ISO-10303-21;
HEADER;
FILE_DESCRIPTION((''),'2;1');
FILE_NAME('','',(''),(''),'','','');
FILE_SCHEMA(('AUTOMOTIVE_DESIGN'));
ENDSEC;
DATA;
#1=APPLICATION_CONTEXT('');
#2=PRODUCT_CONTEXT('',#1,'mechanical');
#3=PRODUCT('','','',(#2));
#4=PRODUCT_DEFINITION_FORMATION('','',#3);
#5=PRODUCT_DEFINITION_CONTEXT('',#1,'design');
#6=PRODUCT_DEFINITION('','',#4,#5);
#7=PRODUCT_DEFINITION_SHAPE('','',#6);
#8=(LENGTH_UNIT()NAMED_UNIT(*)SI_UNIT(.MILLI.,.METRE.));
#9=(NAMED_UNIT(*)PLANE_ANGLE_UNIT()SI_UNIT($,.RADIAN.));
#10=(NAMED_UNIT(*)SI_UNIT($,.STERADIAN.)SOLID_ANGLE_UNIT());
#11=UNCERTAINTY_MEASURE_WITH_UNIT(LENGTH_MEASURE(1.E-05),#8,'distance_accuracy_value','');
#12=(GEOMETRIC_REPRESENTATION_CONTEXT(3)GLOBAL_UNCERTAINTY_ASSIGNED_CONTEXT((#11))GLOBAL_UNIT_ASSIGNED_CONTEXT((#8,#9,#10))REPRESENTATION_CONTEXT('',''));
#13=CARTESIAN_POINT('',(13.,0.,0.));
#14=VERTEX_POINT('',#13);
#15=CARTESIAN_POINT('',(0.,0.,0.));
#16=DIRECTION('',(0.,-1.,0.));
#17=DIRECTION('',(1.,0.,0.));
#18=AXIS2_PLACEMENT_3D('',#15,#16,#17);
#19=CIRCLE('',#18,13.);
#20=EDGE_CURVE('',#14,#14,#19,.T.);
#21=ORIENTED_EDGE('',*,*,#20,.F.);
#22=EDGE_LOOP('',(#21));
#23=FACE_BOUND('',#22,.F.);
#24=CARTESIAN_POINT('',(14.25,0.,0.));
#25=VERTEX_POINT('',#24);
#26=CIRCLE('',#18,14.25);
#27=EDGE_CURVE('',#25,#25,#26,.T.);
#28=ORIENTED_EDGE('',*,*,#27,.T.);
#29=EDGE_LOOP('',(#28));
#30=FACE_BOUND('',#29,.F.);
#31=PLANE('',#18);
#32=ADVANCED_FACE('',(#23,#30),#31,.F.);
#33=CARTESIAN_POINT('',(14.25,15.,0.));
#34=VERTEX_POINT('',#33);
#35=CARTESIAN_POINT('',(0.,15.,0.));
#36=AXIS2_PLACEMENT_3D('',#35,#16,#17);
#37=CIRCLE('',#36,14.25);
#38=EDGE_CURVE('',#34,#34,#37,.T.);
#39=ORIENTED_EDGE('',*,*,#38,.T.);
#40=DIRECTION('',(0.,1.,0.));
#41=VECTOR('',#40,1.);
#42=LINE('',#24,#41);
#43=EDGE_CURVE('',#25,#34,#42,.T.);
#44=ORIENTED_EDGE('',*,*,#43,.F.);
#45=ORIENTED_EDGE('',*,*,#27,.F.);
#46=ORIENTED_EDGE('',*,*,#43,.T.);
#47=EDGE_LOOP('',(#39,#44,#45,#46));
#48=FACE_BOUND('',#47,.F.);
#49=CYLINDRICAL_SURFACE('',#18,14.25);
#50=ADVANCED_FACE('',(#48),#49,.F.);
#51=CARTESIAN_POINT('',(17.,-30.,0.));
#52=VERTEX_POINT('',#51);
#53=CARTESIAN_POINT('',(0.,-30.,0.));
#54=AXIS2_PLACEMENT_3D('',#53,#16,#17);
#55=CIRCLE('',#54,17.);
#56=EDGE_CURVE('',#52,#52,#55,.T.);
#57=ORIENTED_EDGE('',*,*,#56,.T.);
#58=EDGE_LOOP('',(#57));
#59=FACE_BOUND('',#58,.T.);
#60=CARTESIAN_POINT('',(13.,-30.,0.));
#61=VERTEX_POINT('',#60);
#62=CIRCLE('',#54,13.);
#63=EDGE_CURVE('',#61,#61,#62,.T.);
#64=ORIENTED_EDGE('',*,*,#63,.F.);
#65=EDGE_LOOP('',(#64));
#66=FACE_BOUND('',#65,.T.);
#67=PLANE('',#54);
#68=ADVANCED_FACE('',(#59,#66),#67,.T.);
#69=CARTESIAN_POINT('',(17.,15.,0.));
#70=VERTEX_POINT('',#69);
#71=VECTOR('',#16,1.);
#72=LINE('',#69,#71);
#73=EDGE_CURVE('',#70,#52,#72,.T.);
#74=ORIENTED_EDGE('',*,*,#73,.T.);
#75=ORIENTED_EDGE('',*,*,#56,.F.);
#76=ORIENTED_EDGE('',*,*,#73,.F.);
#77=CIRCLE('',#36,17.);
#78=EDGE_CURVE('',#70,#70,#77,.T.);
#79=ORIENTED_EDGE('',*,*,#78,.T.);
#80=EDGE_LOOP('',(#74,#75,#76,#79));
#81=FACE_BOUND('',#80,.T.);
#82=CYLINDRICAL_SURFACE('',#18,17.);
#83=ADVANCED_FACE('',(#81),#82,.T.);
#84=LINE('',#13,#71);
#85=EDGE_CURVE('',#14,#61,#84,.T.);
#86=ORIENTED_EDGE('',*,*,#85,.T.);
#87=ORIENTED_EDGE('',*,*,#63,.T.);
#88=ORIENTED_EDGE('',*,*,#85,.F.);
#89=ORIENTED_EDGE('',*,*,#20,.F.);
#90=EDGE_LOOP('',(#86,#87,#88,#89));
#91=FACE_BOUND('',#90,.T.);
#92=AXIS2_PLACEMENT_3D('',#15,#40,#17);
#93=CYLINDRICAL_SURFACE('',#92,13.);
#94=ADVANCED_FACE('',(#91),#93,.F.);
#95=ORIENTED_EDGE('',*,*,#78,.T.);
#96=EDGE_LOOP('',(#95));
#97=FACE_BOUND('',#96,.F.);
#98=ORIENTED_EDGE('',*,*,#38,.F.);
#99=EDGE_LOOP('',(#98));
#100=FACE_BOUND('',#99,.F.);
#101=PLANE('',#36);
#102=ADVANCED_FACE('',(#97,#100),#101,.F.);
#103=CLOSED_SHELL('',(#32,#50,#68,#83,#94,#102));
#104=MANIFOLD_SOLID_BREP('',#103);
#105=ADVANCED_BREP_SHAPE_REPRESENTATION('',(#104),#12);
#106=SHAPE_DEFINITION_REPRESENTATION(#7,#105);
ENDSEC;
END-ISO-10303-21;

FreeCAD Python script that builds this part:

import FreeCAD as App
import Part
import Sketcher

V = App.Vector

doc = App.newDocument("Part")
body = doc.addObject("PartDesign::Body", "Body")

sketch1 = body.newObject("Sketcher::SketchObject", "Sketch")
sketch1.AttachmentSupport = (doc.getObject("XZ_Plane"), [""])
sketch1.MapMode = "FlatFace"
sketch1.addGeometry(Part.Circle(V(0, 0, 0), V(0, 0, 1), 17), False)
sketch1.addGeometry(Part.Circle(V(0, 0, 0), V(0, 0, 1), 13), False)
sketch1.addConstraint(Sketcher.Constraint("Coincident", 0, 3, -1, 1))
sketch1.addConstraint(Sketcher.Constraint("Coincident", 1, 3, -1, 1))
sketch1.addConstraint(Sketcher.Constraint("Diameter", 0, 34.0))
sketch1.addConstraint(Sketcher.Constraint("Diameter", 1, 26.0))
pad1 = body.newObject("PartDesign::Pad", "Pad")
pad1.Profile = sketch1
pad1.Length = 30

sketch2 = body.newObject("Sketcher::SketchObject", "Sketch001")
sketch2.AttachmentSupport = (doc.getObject("XZ_Plane"), [""])
sketch2.MapMode = "FlatFace"
sketch2.addGeometry(Part.Circle(V(0, 0, 0), V(0, 0, 1), 17), False)
sketch2.addGeometry(Part.Circle(V(0, 0, 0), V(0, 0, 1), 14), False)
sketch2.addConstraint(Sketcher.Constraint("Coincident", 0, 3, -1, 1))
sketch2.addConstraint(Sketcher.Constraint("Coincident", 1, 3, -1, 1))
sketch2.addConstraint(Sketcher.Constraint("Diameter", 0, 34.0))
sketch2.addConstraint(Sketcher.Constraint("Diameter", 1, 28.5))
pad2 = body.newObject("PartDesign::Pad", "Pad001")
pad2.Profile = sketch2
pad2.Length = 15
pad2.Reversed = True

doc.recompute()
